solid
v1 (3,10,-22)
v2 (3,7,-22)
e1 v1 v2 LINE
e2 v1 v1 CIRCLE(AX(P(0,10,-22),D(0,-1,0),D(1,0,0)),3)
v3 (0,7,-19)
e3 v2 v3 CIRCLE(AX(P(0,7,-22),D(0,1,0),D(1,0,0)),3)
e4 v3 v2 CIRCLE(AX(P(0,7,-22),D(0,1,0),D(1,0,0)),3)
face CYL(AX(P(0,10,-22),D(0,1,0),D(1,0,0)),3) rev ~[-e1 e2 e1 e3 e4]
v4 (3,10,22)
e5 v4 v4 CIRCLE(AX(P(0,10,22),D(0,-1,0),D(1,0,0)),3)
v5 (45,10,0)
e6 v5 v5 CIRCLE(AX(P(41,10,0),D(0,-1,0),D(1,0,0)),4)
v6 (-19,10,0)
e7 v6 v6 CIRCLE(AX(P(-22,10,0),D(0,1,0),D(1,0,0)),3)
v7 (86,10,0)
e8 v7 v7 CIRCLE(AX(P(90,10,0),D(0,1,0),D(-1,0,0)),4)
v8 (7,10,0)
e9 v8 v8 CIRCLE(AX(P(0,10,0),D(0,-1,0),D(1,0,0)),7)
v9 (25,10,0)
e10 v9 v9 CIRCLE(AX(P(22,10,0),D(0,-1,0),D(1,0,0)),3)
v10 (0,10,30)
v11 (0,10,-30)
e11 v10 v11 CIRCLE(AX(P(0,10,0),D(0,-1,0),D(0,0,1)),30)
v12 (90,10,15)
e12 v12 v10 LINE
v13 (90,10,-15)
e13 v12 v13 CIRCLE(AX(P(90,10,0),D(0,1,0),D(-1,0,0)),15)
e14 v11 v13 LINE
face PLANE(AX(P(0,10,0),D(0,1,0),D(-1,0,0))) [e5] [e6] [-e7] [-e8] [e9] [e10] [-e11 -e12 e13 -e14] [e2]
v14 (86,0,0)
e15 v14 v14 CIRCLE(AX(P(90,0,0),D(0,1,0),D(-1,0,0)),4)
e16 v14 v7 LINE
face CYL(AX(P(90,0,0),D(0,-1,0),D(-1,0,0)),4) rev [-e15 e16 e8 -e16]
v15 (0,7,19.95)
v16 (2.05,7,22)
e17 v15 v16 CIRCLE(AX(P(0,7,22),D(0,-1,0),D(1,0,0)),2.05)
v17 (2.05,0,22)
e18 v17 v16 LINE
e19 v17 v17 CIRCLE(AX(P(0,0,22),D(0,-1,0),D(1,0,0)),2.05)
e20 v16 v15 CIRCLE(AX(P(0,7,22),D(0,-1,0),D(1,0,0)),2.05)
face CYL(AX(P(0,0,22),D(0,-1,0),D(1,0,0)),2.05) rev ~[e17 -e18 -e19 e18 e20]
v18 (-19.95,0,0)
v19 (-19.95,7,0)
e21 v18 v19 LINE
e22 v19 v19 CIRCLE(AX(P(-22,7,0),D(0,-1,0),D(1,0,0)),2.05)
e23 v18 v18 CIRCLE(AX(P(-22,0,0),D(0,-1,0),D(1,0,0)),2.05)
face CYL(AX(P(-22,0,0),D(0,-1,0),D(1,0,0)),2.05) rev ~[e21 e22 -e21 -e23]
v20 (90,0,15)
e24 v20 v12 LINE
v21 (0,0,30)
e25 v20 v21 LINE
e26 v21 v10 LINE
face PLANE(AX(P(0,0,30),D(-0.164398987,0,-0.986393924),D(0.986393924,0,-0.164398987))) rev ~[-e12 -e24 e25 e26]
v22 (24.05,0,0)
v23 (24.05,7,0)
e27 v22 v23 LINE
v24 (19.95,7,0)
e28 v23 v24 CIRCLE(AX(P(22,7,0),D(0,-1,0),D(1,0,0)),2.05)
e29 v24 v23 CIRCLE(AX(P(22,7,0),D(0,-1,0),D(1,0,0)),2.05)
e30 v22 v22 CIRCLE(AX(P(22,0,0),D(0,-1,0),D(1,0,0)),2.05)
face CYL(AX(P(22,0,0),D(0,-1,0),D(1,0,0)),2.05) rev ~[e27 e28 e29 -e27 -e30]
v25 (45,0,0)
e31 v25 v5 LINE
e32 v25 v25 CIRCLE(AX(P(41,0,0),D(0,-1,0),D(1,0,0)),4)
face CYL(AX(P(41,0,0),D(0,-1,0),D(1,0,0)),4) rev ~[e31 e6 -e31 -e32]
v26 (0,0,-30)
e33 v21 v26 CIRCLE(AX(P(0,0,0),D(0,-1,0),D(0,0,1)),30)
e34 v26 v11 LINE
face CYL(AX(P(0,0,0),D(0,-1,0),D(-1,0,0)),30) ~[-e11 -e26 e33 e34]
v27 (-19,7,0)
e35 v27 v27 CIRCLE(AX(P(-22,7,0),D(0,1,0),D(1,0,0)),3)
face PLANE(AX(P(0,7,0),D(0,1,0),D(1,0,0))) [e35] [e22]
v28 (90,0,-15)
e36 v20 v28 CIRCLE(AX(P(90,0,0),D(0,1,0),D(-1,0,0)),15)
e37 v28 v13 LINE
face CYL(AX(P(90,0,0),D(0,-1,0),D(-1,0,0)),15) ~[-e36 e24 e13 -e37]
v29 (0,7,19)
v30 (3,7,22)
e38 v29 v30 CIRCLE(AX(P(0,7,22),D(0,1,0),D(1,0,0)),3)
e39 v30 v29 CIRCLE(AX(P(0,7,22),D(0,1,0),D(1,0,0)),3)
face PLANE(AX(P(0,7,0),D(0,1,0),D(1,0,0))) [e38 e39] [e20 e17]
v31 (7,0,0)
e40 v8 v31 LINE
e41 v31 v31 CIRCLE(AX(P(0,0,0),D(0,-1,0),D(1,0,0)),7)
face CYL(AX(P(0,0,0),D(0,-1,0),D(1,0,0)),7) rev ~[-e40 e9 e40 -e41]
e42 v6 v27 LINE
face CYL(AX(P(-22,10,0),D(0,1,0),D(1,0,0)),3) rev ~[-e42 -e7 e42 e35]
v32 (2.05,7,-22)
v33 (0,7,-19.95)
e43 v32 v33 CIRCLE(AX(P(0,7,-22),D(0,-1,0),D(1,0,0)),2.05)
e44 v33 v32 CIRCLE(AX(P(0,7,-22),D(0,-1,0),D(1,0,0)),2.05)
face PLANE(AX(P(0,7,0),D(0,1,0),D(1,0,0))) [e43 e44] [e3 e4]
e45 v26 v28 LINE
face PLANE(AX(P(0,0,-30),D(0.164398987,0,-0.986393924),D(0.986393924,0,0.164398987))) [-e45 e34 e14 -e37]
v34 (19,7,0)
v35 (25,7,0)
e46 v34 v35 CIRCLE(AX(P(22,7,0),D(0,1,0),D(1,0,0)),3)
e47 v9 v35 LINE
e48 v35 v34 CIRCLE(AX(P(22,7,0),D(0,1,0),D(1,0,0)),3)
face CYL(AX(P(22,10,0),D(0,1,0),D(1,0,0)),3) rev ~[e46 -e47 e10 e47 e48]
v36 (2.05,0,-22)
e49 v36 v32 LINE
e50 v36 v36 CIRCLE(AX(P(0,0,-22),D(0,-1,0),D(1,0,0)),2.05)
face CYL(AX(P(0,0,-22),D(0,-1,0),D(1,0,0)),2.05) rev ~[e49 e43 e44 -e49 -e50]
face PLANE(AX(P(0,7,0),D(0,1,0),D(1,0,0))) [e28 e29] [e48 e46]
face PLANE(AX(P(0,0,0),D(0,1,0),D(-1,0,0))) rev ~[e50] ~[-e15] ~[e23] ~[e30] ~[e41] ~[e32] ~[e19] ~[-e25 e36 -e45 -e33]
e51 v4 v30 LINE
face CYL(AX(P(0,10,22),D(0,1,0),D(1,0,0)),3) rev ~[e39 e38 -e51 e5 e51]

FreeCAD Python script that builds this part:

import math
import FreeCAD as App
import Part
import Sketcher
from FreeCAD import Vector
Q = App.Units.Quantity

doc = App.newDocument("Part")
body = doc.addObject("PartDesign::Body", "Body")

sketch1 = body.newObject("Sketcher::SketchObject", "Sketch")
sketch1.AttachmentSupport = (doc.getObject("XZ_Plane"), [""])
sketch1.MapMode = "FlatFace"
sketch1.addGeometry(Part.LineSegment(Vector(0, 30, 0), Vector(90, 15, 0)), False)
sketch1.addGeometry(Part.ArcOfCircle(Part.Circle(Vector(90, 0, 0), Vector(0, 0, 1), 15), math.radians(-90), math.radians(90)), False)
sketch1.addGeometry(Part.LineSegment(Vector(90, -15, 0), Vector(0, -30, 0)), False)
sketch1.addGeometry(Part.ArcOfCircle(Part.Circle(Vector(0, 0, 0), Vector(0, 0, 1), 30), math.radians(90), math.radians(270)), False)
sketch1.addGeometry(Part.Circle(Vector(90, 0, 0), Vector(0, 0, 1), 4), False)
sketch1.addConstraint(Sketcher.Constraint("Coincident", 0, 2, 1, 2))
sketch1.addConstraint(Sketcher.Constraint("Coincident", 1, 1, 2, 1))
sketch1.addConstraint(Sketcher.Constraint("Coincident", 2, 2, 3, 2))
sketch1.addConstraint(Sketcher.Constraint("Coincident", 3, 1, 0, 1))
sketch1.addConstraint(Sketcher.Constraint("Coincident", 3, 3, -1, 1))
sketch1.addConstraint(Sketcher.Constraint("Coincident", 4, 3, 1, 3))
sketch1.addConstraint(Sketcher.Constraint("Symmetric", 0, 2, 1, 1, -1))
sketch1.addConstraint(Sketcher.Constraint("PointOnObject", 2, 2, -2))
sketch1.addConstraint(Sketcher.Constraint("PointOnObject", 3, 1, -2))
sketch1.addConstraint(Sketcher.Constraint("Vertical", 4, 3, 0, 2))
sketch1.addConstraint(Sketcher.Constraint("Diameter", 4, Q("8 mm")))
sketch1.addConstraint(Sketcher.Constraint("Radius", 1, Q("15 mm")))
sketch1.addConstraint(Sketcher.Constraint("Radius", 3, Q("30 mm")))
sketch1.addConstraint(Sketcher.Constraint("DistanceX", -1, 1, 1, 3, Q("90 mm")))
pad1 = body.newObject("PartDesign::Pad", "Pad")
pad1.Profile = sketch1
pad1.Length = 10
pad1.Reversed = True

sketch2 = body.newObject("Sketcher::SketchObject", "Sketch001")
sketch2.AttachmentSupport = (doc.getObject("XZ_Plane"), [""])
sketch2.MapMode = "FlatFace"
sketch2.addGeometry(Part.Circle(Vector(0, 22, 0), Vector(0, 0, 1), 1.5), False)
sketch2.addGeometry(Part.Circle(Vector(0, -22, 0), Vector(0, 0, 1), 1.5), False)
sketch2.addGeometry(Part.Circle(Vector(22, 0, 0), Vector(0, 0, 1), 1.5), False)
sketch2.addGeometry(Part.Circle(Vector(-22, 0, 0), Vector(0, 0, 1), 1.5), False)
sketch2.addConstraint(Sketcher.Constraint("Equal", 0, 1))
sketch2.addConstraint(Sketcher.Constraint("Equal", 1, 2))
sketch2.addConstraint(Sketcher.Constraint("Equal", 2, 3))
sketch2.addConstraint(Sketcher.Constraint("Symmetric", 0, 3, 1, 3, -1, 1))
sketch2.addConstraint(Sketcher.Constraint("Symmetric", 2, 3, 3, 3, -1, 1))
sketch2.addConstraint(Sketcher.Constraint("PointOnObject", 0, 3, -2))
sketch2.addConstraint(Sketcher.Constraint("PointOnObject", 2, 3, -1))
sketch2.addConstraint(Sketcher.Constraint("Diameter", 0, Q("3 mm")))
sketch2.addConstraint(Sketcher.Constraint("DistanceY", -1, 1, 0, 3, Q("22 mm")))
sketch2.addConstraint(Sketcher.Constraint("DistanceX", -1, 1, 2, 3, Q("22 mm")))
pocket1 = body.newObject("PartDesign::Pocket", "Pocket")
pocket1.Profile = sketch2
pocket1.Length = 10

sketch3 = body.newObject("Sketcher::SketchObject", "Sketch002")
sketch3.AttachmentSupport = (doc.getObject("XZ_Plane"), [""])
sketch3.MapMode = "FlatFace"
sketch3.AttachmentOffset = App.Placement(Vector(0, 0, -10), App.Rotation())
sketch3.addGeometry(Part.Circle(Vector(0, 22, 0), Vector(0, 0, 1), 3), False)
sketch3.addGeometry(Part.Circle(Vector(0, 22, 0), Vector(0, 0, 1), 1.5), False)
sketch3.addGeometry(Part.Circle(Vector(-22, 0, 0), Vector(0, 0, 1), 3), False)
sketch3.addGeometry(Part.Circle(Vector(-22, 0, 0), Vector(0, 0, 1), 1.5), False)
sketch3.addGeometry(Part.Circle(Vector(0, -22, 0), Vector(0, 0, 1), 3), False)
sketch3.addGeometry(Part.Circle(Vector(0, -22, 0), Vector(0, 0, 1), 1.5), False)
sketch3.addGeometry(Part.Circle(Vector(22, 0, 0), Vector(0, 0, 1), 3), False)
sketch3.addGeometry(Part.Circle(Vector(22, 0, 0), Vector(0, 0, 1), 1.5), False)
sketch3.addConstraint(Sketcher.Constraint("Coincident", 1, 3, 0, 3))
sketch3.addConstraint(Sketcher.Constraint("Coincident", 3, 3, 2, 3))
sketch3.addConstraint(Sketcher.Constraint("Coincident", 5, 3, 4, 3))
sketch3.addConstraint(Sketcher.Constraint("Coincident", 7, 3, 6, 3))
sketch3.addConstraint(Sketcher.Constraint("Equal", 0, 2))
sketch3.addConstraint(Sketcher.Constraint("Equal", 1, 3))
sketch3.addConstraint(Sketcher.Constraint("Equal", 2, 4))
sketch3.addConstraint(Sketcher.Constraint("Equal", 3, 5))
sketch3.addConstraint(Sketcher.Constraint("Equal", 4, 6))
sketch3.addConstraint(Sketcher.Constraint("Equal", 5, 7))
sketch3.addConstraint(Sketcher.Constraint("Symmetric", 0, 3, 4, 3, -1, 1))
sketch3.addConstraint(Sketcher.Constraint("Symmetric", 2, 3, 6, 3, -1, 1))
sketch3.addConstraint(Sketcher.Constraint("PointOnObject", 0, 3, -2))
sketch3.addConstraint(Sketcher.Constraint("PointOnObject", 2, 3, -1))
sketch3.addConstraint(Sketcher.Constraint("Diameter", 0, Q("6 mm")))
sketch3.addConstraint(Sketcher.Constraint("Diameter", 1, Q("3 mm")))
sketch3.addConstraint(Sketcher.Constraint("DistanceY", -1, 1, 0, 3, Q("22 mm")))
sketch3.addConstraint(Sketcher.Constraint("DistanceX", 2, 3, -1, 1, Q("22 mm")))
pocket2 = body.newObject("PartDesign::Pocket", "Pocket001")
pocket2.Profile = sketch3
pocket2.Length = 3
pocket2.Reversed = True

sketch4 = body.newObject("Sketcher::SketchObject", "Sketch003")
sketch4.AttachmentSupport = (doc.getObject("XZ_Plane"), [""])
sketch4.MapMode = "FlatFace"
sketch4.addGeometry(Part.Circle(Vector(0, 0, 0), Vector(0, 0, 1), 7), False)
sketch4.addGeometry(Part.Circle(Vector(0, 0, 0), Vector(0, 0, 1), 5), False)
sketch4.addConstraint(Sketcher.Constraint("Coincident", 0, 3, -1, 1))
sketch4.addConstraint(Sketcher.Constraint("Coincident", 1, 3, -1, 1))
sketch4.addConstraint(Sketcher.Constraint("Diameter", 0, Q("14 mm")))
sketch4.addConstraint(Sketcher.Constraint("Diameter", 1, Q("10 mm")))
pocket3 = body.newObject("PartDesign::Pocket", "Pocket002")
pocket3.Profile = sketch4
pocket3.Length = 2.5

sketch5 = body.newObject("Sketcher::SketchObject", "Sketch004")
sketch5.AttachmentSupport = (doc.getObject("XZ_Plane"), [""])
sketch5.MapMode = "FlatFace"
sketch5.addGeometry(Part.Circle(Vector(0, 22, 0), Vector(0, 0, 1), 2.05), False)
sketch5.addGeometry(Part.Circle(Vector(0, 22, 0), Vector(0, 0, 1), 1.5), False)
sketch5.addGeometry(Part.Circle(Vector(-22, 0, 0), Vector(0, 0, 1), 2.05), False)
sketch5.addGeometry(Part.Circle(Vector(0, -22, 0), Vector(0, 0, 1), 2.05), False)
sketch5.addGeometry(Part.Circle(Vector(22, 0, 0), Vector(0, 0, 1), 2.05), False)
sketch5.addConstraint(Sketcher.Constraint("Coincident", 1, 3, 0, 3))
sketch5.addConstraint(Sketcher.Constraint("Equal", 0, 2))
sketch5.addConstraint(Sketcher.Constraint("Equal", 2, 3))
sketch5.addConstraint(Sketcher.Constraint("Equal", 3, 4))
sketch5.addConstraint(Sketcher.Constraint("Symmetric", 0, 3, 3, 3, -1, 1))
sketch5.addConstraint(Sketcher.Constraint("Symmetric", 2, 3, 4, 3, -1, 1))
sketch5.addConstraint(Sketcher.Constraint("PointOnObject", 0, 3, -2))
sketch5.addConstraint(Sketcher.Constraint("PointOnObject", 2, 3, -1))
sketch5.addConstraint(Sketcher.Constraint("Diameter", 0, Q("4.1 mm")))
sketch5.addConstraint(Sketcher.Constraint("Diameter", 1, Q("3 mm")))
sketch5.addConstraint(Sketcher.Constraint("DistanceY", -1, 1, 0, 3, Q("22 mm")))
sketch5.addConstraint(Sketcher.Constraint("DistanceX", 2, 3, -1, 1, Q("22 mm")))
pocket4 = body.newObject("PartDesign::Pocket", "Pocket003")
pocket4.Profile = sketch5
pocket4.Length = 10

sketch6 = body.newObject("Sketcher::SketchObject", "Sketch005")
sketch6.AttachmentSupport = (doc.getObject("XZ_Plane"), [""])
sketch6.MapMode = "FlatFace"
sketch6.addGeometry(Part.Circle(Vector(0, 0, 0), Vector(0, 0, 1), 7), False)
sketch6.addConstraint(Sketcher.Constraint("Coincident", 0, 3, -1, 1))
sketch6.addConstraint(Sketcher.Constraint("Diameter", 0, Q("14 mm")))
pocket5 = body.newObject("PartDesign::Pocket", "Pocket004")
pocket5.Profile = sketch6
pocket5.Length = 70.5

sketch7 = body.newObject("Sketcher::SketchObject", "Sketch006")
sketch7.AttachmentSupport = (doc.getObject("XZ_Plane"), [""])
sketch7.MapMode = "FlatFace"
sketch7.addGeometry(Part.Circle(Vector(41, 0, 0), Vector(0, 0, 1), 4), False)
sketch7.addConstraint(Sketcher.Constraint("PointOnObject", 0, 3, -1))
sketch7.addConstraint(Sketcher.Constraint("Diameter", 0, Q("8 mm")))
sketch7.addConstraint(Sketcher.Constraint("DistanceX", -1, 1, 0, 3, Q("41 mm")))
pocket6 = body.newObject("PartDesign::Pocket", "Pocket005")
pocket6.Profile = sketch7
pocket6.Length = 29.5

doc.recompute()
